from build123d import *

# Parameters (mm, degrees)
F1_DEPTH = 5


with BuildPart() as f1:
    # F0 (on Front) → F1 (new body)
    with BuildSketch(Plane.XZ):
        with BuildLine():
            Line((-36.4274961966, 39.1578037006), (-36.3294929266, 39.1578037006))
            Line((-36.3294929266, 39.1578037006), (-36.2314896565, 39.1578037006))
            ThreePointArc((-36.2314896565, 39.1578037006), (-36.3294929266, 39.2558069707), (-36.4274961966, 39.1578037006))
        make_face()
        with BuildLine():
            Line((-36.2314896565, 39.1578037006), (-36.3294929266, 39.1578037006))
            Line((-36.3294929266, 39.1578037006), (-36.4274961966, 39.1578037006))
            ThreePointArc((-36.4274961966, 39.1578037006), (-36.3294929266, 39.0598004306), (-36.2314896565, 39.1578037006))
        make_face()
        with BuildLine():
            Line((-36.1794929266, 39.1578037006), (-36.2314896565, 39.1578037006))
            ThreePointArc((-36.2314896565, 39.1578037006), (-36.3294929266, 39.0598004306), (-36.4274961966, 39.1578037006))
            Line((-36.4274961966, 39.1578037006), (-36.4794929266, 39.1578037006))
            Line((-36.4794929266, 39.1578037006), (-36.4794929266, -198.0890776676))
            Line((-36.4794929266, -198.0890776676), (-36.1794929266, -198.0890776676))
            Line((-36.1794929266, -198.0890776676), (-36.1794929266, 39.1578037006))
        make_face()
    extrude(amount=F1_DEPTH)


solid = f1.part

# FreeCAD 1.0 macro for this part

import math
import FreeCAD as App
import Part
import Sketcher

V = App.Vector
Q = App.Units.Quantity

doc = App.newDocument("Part")
params = doc.addObject("Spreadsheet::Sheet", "Params")
for row, (alias, value) in enumerate([
    ("sketch1_width", "0.3 mm"),
    ("pad1_length", "5 mm"),
], start=1):
    params.set(f"A{row}", alias)
    params.set(f"B{row}", "=" + value)
    params.setAlias(f"B{row}", alias)

body = doc.addObject("PartDesign::Body", "Body")

sketch1 = body.newObject("Sketcher::SketchObject", "Sketch")
sketch1.AttachmentSupport = (doc.getObject("XZ_Plane"), [""])
sketch1.MapMode = "FlatFace"
sketch1.addGeometry([
    Part.ArcOfCircle(Part.Circle(V(-36.329493, 39.157804, 0), V(0, 0, 1), 0.098003), math.radians(0), math.radians(180)),
    Part.LineSegment(V(-36.427496, 39.157804, 0), V(-36.479493, 39.157804, 0)),
    Part.LineSegment(V(-36.479493, 39.157804, 0), V(-36.479493, -198.089078, 0)),
    Part.LineSegment(V(-36.479493, -198.089078, 0), V(-36.179493, -198.089078, 0)),
    Part.LineSegment(V(-36.179493, -198.089078, 0), V(-36.179493, 39.157804, 0)),
    Part.LineSegment(V(-36.179493, 39.157804, 0), V(-36.23149, 39.157804, 0)),
], False)
sketch1.addConstraint([
    Sketcher.Constraint("Coincident", 0, 2, 1, 1),
    Sketcher.Constraint("Coincident", 1, 2, 2, 1),
    Sketcher.Constraint("Coincident", 2, 2, 3, 1),
    Sketcher.Constraint("Coincident", 3, 2, 4, 1),
    Sketcher.Constraint("Coincident", 4, 2, 5, 1),
    Sketcher.Constraint("Coincident", 5, 2, 0, 1),
    Sketcher.Constraint("Horizontal", 1),
    Sketcher.Constraint("Vertical", 2),
    Sketcher.Constraint("Horizontal", 3),
    Sketcher.Constraint("Vertical", 4),
    Sketcher.Constraint("Horizontal", 5),
    Sketcher.Constraint("Horizontal", 1, 2, 4, 2),
    Sketcher.Constraint("Equal", 1, 5),
    Sketcher.Constraint("DistanceX", 3, 1, 3, 2, Q("0.3 mm")),
    Sketcher.Constraint("Radius", 0, Q("0.098003 mm")),
    Sketcher.Constraint("DistanceY", 2, 2, 2, 1, Q("237.246881 mm")),
    Sketcher.Constraint("DistanceX", 5, 2, -1, 1, Q("36.23149 mm")),
    Sketcher.Constraint("DistanceY", 2, 2, 0, 3, Q("237.246881 mm")),
    Sketcher.Constraint("DistanceY", -1, 1, 0, 3, Q("39.157804 mm")),
])
sketch1.setExpression("Constraints[13]", "Params.sketch1_width")
pad1 = body.newObject("PartDesign::Pad", "Pad")
pad1.Profile = sketch1
pad1.setExpression("Length", "Params.pad1_length")

doc.recompute()
